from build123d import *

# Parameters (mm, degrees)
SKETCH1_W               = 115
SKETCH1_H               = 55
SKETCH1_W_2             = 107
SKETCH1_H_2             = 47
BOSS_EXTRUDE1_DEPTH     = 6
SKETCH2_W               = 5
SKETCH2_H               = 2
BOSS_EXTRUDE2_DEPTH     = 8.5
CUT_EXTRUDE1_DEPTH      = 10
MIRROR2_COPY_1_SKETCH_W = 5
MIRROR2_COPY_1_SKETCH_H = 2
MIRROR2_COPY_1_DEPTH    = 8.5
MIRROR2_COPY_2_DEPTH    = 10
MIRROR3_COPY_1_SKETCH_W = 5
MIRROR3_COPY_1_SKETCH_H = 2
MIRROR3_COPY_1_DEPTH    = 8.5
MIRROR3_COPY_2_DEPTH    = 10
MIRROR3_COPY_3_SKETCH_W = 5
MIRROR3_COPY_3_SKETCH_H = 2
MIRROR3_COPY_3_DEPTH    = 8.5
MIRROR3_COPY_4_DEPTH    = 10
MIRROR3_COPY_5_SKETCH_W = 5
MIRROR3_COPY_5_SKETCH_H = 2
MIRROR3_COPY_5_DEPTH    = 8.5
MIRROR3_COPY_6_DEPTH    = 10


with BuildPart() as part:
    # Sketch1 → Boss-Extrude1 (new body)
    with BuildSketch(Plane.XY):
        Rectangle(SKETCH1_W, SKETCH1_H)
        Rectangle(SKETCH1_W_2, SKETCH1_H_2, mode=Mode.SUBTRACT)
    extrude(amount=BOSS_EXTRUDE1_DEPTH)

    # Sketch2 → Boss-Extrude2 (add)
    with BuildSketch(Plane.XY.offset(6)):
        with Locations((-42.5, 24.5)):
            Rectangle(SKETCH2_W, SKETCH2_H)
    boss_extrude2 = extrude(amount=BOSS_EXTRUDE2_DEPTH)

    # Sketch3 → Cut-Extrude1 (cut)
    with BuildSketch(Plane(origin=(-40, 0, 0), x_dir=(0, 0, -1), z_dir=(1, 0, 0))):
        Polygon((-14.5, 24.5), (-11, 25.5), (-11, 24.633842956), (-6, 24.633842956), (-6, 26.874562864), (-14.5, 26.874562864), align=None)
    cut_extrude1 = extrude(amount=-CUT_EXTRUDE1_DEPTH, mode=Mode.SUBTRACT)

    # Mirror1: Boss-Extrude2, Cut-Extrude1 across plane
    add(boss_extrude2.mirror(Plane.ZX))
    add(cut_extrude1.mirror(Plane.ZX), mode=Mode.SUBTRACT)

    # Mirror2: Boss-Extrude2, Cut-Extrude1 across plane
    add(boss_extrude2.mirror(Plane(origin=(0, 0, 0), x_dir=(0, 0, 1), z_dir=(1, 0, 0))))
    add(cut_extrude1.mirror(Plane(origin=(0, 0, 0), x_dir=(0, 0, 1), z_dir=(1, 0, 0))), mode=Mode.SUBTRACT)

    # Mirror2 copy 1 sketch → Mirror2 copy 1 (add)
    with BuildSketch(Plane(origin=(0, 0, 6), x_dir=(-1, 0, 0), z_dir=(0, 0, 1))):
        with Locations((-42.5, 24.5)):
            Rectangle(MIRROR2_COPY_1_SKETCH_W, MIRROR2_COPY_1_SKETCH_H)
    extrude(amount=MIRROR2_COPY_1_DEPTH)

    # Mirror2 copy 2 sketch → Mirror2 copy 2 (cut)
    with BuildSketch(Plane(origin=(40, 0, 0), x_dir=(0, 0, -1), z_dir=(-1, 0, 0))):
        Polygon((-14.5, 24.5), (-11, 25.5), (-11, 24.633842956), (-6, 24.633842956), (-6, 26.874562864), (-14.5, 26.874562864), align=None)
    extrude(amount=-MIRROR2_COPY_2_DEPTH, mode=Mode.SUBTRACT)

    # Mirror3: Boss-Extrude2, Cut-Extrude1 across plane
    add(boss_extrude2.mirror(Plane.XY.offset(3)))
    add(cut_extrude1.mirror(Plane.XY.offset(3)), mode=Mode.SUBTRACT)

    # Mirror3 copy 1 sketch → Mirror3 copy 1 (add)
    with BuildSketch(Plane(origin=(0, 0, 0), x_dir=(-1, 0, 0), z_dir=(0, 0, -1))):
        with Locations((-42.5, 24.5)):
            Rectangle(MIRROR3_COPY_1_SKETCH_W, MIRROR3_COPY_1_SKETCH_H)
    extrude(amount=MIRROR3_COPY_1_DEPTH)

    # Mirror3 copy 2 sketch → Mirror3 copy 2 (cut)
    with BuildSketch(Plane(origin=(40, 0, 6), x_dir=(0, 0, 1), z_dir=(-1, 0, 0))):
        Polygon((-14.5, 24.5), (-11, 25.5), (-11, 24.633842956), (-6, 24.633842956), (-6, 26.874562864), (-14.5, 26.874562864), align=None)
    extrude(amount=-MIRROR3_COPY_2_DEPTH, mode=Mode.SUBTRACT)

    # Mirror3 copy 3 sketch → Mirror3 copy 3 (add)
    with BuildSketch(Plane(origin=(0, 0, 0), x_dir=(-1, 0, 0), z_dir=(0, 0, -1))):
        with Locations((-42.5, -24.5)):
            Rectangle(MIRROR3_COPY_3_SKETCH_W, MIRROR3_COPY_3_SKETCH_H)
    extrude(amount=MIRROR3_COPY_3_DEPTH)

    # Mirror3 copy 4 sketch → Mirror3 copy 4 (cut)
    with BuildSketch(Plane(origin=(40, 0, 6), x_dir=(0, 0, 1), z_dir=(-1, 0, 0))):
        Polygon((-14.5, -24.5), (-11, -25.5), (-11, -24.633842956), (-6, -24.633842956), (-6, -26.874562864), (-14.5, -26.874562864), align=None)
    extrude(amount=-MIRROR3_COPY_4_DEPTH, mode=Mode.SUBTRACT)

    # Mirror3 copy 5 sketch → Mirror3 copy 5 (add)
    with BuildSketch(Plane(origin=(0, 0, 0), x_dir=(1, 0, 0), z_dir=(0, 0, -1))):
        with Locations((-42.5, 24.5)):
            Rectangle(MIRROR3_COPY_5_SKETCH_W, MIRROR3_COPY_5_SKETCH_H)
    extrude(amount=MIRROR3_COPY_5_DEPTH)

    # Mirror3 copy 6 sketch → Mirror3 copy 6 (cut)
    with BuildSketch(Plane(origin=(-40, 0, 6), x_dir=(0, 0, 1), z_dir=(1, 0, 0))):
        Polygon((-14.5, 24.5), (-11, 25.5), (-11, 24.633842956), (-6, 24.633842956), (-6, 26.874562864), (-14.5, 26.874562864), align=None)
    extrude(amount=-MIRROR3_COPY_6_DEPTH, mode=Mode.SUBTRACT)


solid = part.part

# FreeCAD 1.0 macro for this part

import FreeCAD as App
import Part
import Sketcher

V = App.Vector

doc = App.newDocument("Part")
body = doc.addObject("PartDesign::Body", "Body")

# Sketch on XY plane
sketch1 = doc.addObject("Sketcher::SketchObject", "Sketch")
body.addObject(sketch1)
sketch1.AttachmentSupport = (doc.XY_Plane, [""])
sketch1.MapMode = "FlatFace"
sketch1.addGeometry([
    Part.LineSegment(V(-58, 28, 0), V(-58, -28, 0)),  # 0
    Part.LineSegment(V(-58, -28, 0), V(58, -28, 0)),  # 1
    Part.LineSegment(V(58, -28, 0), V(58, 28, 0)),  # 2
    Part.LineSegment(V(58, 28, 0), V(-58, 28, 0)),  # 3
    Part.LineSegment(V(54, -24, 0), V(-54, -24, 0)),  # 4
    Part.LineSegment(V(-54, -24, 0), V(-54, 24, 0)),  # 5
    Part.LineSegment(V(-54, 24, 0), V(54, 24, 0)),  # 6
    Part.LineSegment(V(54, 24, 0), V(54, -24, 0)),  # 7
], False)
sketch1.addConstraint([
    Sketcher.Constraint("Coincident", 0, 2, 1, 1),
    Sketcher.Constraint("Coincident", 1, 2, 2, 1),
    Sketcher.Constraint("Coincident", 2, 2, 3, 1),
    Sketcher.Constraint("Coincident", 3, 2, 0, 1),
    Sketcher.Constraint("Coincident", 4, 2, 5, 1),
    Sketcher.Constraint("Coincident", 5, 2, 6, 1),
    Sketcher.Constraint("Coincident", 6, 2, 7, 1),
    Sketcher.Constraint("Coincident", 7, 2, 4, 1),
    Sketcher.Constraint("Vertical", 0),
    Sketcher.Constraint("Horizontal", 1),
    Sketcher.Constraint("Vertical", 2),
    Sketcher.Constraint("Horizontal", 3),
    Sketcher.Constraint("Horizontal", 4),
    Sketcher.Constraint("Vertical", 5),
    Sketcher.Constraint("Horizontal", 6),
    Sketcher.Constraint("Vertical", 7),
    Sketcher.Constraint("Symmetric", 0, 2, 2, 2, -1, 1),
    Sketcher.Constraint("Symmetric", 4, 2, 6, 2, -1, 1),
    Sketcher.Constraint("DistanceX", 1, 1, 1, 2, 115.0),
    Sketcher.Constraint("DistanceX", 4, 2, 4, 1, 107.0),
    Sketcher.Constraint("DistanceY", 0, 2, 0, 1, 55.0),
    Sketcher.Constraint("DistanceY", 5, 1, 5, 2, 47.0),
])
pad1 = doc.addObject("PartDesign::Pad", "Pad")
body.addObject(pad1)
pad1.Profile = sketch1
pad1.Length = 6

# Sketch on XY plane
sketch2 = doc.addObject("Sketcher::SketchObject", "Sketch001")
body.addObject(sketch2)
sketch2.AttachmentSupport = (doc.XY_Plane, [""])
sketch2.MapMode = "FlatFace"
sketch2.AttachmentOffset = App.Placement(V(0, 0, 6), App.Rotation())
sketch2.addGeometry([
    Part.LineSegment(V(-45, 25.5, 0), V(-45, 23.5, 0)),
    Part.LineSegment(V(-45, 23.5, 0), V(-40, 23.5, 0)),
    Part.LineSegment(V(-40, 23.5, 0), V(-40, 25.5, 0)),
    Part.LineSegment(V(-40, 25.5, 0), V(-45, 25.5, 0)),
], False)
sketch2.addConstraint([
    Sketcher.Constraint("Coincident", 0, 2, 1, 1),
    Sketcher.Constraint("Coincident", 1, 2, 2, 1),
    Sketcher.Constraint("Coincident", 2, 2, 3, 1),
    Sketcher.Constraint("Coincident", 3, 2, 0, 1),
    Sketcher.Constraint("Vertical", 0),
    Sketcher.Constraint("Horizontal", 1),
    Sketcher.Constraint("Vertical", 2),
    Sketcher.Constraint("Horizontal", 3),
    Sketcher.Constraint("DistanceX", 1, 1, 1, 2, 5.0),
    Sketcher.Constraint("DistanceY", 0, 2, 0, 1, 2.0),
    Sketcher.Constraint("DistanceX", 0, 2, -1, 1, 45.0),
    Sketcher.Constraint("DistanceY", -1, 1, 0, 2, 23.5),
])
pad2 = doc.addObject("PartDesign::Pad", "Pad001")
body.addObject(pad2)
pad2.Profile = sketch2
pad2.Length = 8.5

# Sketch on YZ plane
sketch3 = doc.addObject("Sketcher::SketchObject", "Sketch002")
body.addObject(sketch3)
sketch3.AttachmentSupport = (doc.YZ_Plane, [""])
sketch3.MapMode = "FlatFace"
sketch3.AttachmentOffset = App.Placement(V(0, 0, -40), App.Rotation())
sketch3.addGeometry([
    Part.LineSegment(V(24.5, 14.5, 0), V(25.5, 11, 0)),  # 0
    Part.LineSegment(V(25.5, 11, 0), V(24.6, 11, 0)),  # 1
    Part.LineSegment(V(24.6, 11, 0), V(24.6, 6, 0)),  # 2
    Part.LineSegment(V(24.6, 6, 0), V(26.9, 6, 0)),  # 3
    Part.LineSegment(V(26.9, 6, 0), V(26.9, 14.5, 0)),  # 4
    Part.LineSegment(V(26.9, 14.5, 0), V(24.5, 14.5, 0)),  # 5
], False)
sketch3.addConstraint([
    Sketcher.Constraint("Coincident", 0, 2, 1, 1),
    Sketcher.Constraint("Coincident", 1, 2, 2, 1),
    Sketcher.Constraint("Coincident", 2, 2, 3, 1),
    Sketcher.Constraint("Coincident", 3, 2, 4, 1),
    Sketcher.Constraint("Coincident", 4, 2, 5, 1),
    Sketcher.Constraint("Coincident", 5, 2, 0, 1),
    Sketcher.Constraint("Horizontal", 1),
    Sketcher.Constraint("Vertical", 2),
    Sketcher.Constraint("Horizontal", 3),
    Sketcher.Constraint("Vertical", 4),
    Sketcher.Constraint("Horizontal", 5),
    Sketcher.Constraint("DistanceY", 2, 2, 2, 1, 5.0),
    Sketcher.Constraint("DistanceY", 4, 1, 4, 2, 8.5),
    Sketcher.Constraint("DistanceY", -1, 1, 0, 2, 11.0),
    Sketcher.Constraint("DistanceX", 5, 2, 0, 2, 1.0),
    Sketcher.Constraint("DistanceX", -1, 1, 0, 2, 25.5),
    Sketcher.Constraint("DistanceX", 3, 1, 3, 2, 2.24072),
    Sketcher.Constraint("DistanceX", 1, 2, 1, 1, 0.866157),
])
pocket1 = doc.addObject("PartDesign::Pocket", "Pocket")
body.addObject(pocket1)
pocket1.Profile = sketch3
pocket1.Length = 10
doc.recompute()

mirrored = doc.addObject("PartDesign::Mirrored", "Mirrored")
body.addObject(mirrored)
mirrored.Originals = [pad2, pocket1]
mirrored.MirrorPlane = (doc.XZ_Plane, [""])
body.Tip = mirrored
doc.recompute()

mirrored2 = doc.addObject("PartDesign::Mirrored", "Mirrored001")
body.addObject(mirrored2)
mirrored2.Originals = [pad2, pocket1]
mirrored2.MirrorPlane = (doc.YZ_Plane, [""])
body.Tip = mirrored2

# Sketch on XY plane
sketch4 = doc.addObject("Sketcher::SketchObject", "Sketch003")
body.addObject(sketch4)
sketch4.AttachmentSupport = (doc.XY_Plane, [""])
sketch4.MapMode = "FlatFace"
sketch4.AttachmentOffset = App.Placement(V(0, 0, 6), App.Rotation())
sketch4.addGeometry([
    Part.LineSegment(V(45, -25.5, 0), V(45, -23.5, 0)),
    Part.LineSegment(V(45, -23.5, 0), V(40, -23.5, 0)),
    Part.LineSegment(V(40, -23.5, 0), V(40, -25.5, 0)),
    Part.LineSegment(V(40, -25.5, 0), V(45, -25.5, 0)),
], False)
sketch4.addConstraint([
    Sketcher.Constraint("Coincident", 0, 2, 1, 1),
    Sketcher.Constraint("Coincident", 1, 2, 2, 1),
    Sketcher.Constraint("Coincident", 2, 2, 3, 1),
    Sketcher.Constraint("Coincident", 3, 2, 0, 1),
    Sketcher.Constraint("Vertical", 0),
    Sketcher.Constraint("Horizontal", 1),
    Sketcher.Constraint("Vertical", 2),
    Sketcher.Constraint("Horizontal", 3),
    Sketcher.Constraint("DistanceX", 1, 2, 1, 1, 5.0),
    Sketcher.Constraint("DistanceY", 0, 1, 0, 2, 2.0),
    Sketcher.Constraint("DistanceX", -1, 1, 0, 2, 45.0),
    Sketcher.Constraint("DistanceY", 0, 2, -1, 1, 23.5),
])
pad3 = doc.addObject("PartDesign::Pad", "Pad002")
body.addObject(pad3)
pad3.Profile = sketch4
pad3.Length = 8.5

# Sketch on YZ plane
sketch5 = doc.addObject("Sketcher::SketchObject", "Sketch004")
body.addObject(sketch5)
sketch5.AttachmentSupport = (doc.YZ_Plane, [""])
sketch5.MapMode = "FlatFace"
sketch5.AttachmentOffset = App.Placement(V(0, 0, 40), App.Rotation())
sketch5.addGeometry([
    Part.LineSegment(V(-24.5, 14.5, 0), V(-25.5, 11, 0)),  # 0
    Part.LineSegment(V(-25.5, 11, 0), V(-24.6, 11, 0)),  # 1
    Part.LineSegment(V(-24.6, 11, 0), V(-24.6, 6, 0)),  # 2
    Part.LineSegment(V(-24.6, 6, 0), V(-26.9, 6, 0)),  # 3
    Part.LineSegment(V(-26.9, 6, 0), V(-26.9, 14.5, 0)),  # 4
    Part.LineSegment(V(-26.9, 14.5, 0), V(-24.5, 14.5, 0)),  # 5
], False)
sketch5.addConstraint([
    Sketcher.Constraint("Coincident", 0, 2, 1, 1),
    Sketcher.Constraint("Coincident", 1, 2, 2, 1),
    Sketcher.Constraint("Coincident", 2, 2, 3, 1),
    Sketcher.Constraint("Coincident", 3, 2, 4, 1),
    Sketcher.Constraint("Coincident", 4, 2, 5, 1),
    Sketcher.Constraint("Coincident", 5, 2, 0, 1),
    Sketcher.Constraint("Horizontal", 1),
    Sketcher.Constraint("Vertical", 2),
    Sketcher.Constraint("Horizontal", 3),
    Sketcher.Constraint("Vertical", 4),
    Sketcher.Constraint("Horizontal", 5),
    Sketcher.Constraint("DistanceY", 2, 2, 2, 1, 5.0),
    Sketcher.Constraint("DistanceY", 4, 1, 4, 2, 8.5),
    Sketcher.Constraint("DistanceY", -1, 1, 0, 2, 11.0),
    Sketcher.Constraint("DistanceX", 0, 2, 5, 2, 1.0),
    Sketcher.Constraint("DistanceX", 0, 2, -1, 1, 25.5),
    Sketcher.Constraint("DistanceX", 3, 2, 3, 1, 2.24072),
    Sketcher.Constraint("DistanceX", 1, 1, 1, 2, 0.866157),
])
pocket2 = doc.addObject("PartDesign::Pocket", "Pocket001")
body.addObject(pocket2)
pocket2.Profile = sketch5
pocket2.Length = 10
pocket2.Reversed = True
doc.recompute()

datumplane = doc.addObject("PartDesign::Plane", "DatumPlane")
body.addObject(datumplane)
datumplane.AttachmentSupport = (doc.XY_Plane, [""])
datumplane.MapMode = "FlatFace"
datumplane.AttachmentOffset = App.Placement(V(0, 0, 3), App.Rotation())
mirrored3 = doc.addObject("PartDesign::Mirrored", "Mirrored002")
body.addObject(mirrored3)
mirrored3.Originals = [pad2, pocket1]
mirrored3.MirrorPlane = (datumplane, [""])
body.Tip = mirrored3

# Sketch on XY plane
sketch6 = doc.addObject("Sketcher::SketchObject", "Sketch005")
body.addObject(sketch6)
sketch6.AttachmentSupport = (doc.XY_Plane, [""])
sketch6.MapMode = "FlatFace"
sketch6.addGeometry([
    Part.LineSegment(V(45, 25.5, 0), V(45, 23.5, 0)),
    Part.LineSegment(V(45, 23.5, 0), V(40, 23.5, 0)),
    Part.LineSegment(V(40, 23.5, 0), V(40, 25.5, 0)),
    Part.LineSegment(V(40, 25.5, 0), V(45, 25.5, 0)),
], False)
sketch6.addConstraint([
    Sketcher.Constraint("Coincident", 0, 2, 1, 1),
    Sketcher.Constraint("Coincident", 1, 2, 2, 1),
    Sketcher.Constraint("Coincident", 2, 2, 3, 1),
    Sketcher.Constraint("Coincident", 3, 2, 0, 1),
    Sketcher.Constraint("Vertical", 0),
    Sketcher.Constraint("Horizontal", 1),
    Sketcher.Constraint("Vertical", 2),
    Sketcher.Constraint("Horizontal", 3),
    Sketcher.Constraint("DistanceX", 1, 2, 1, 1, 5.0),
    Sketcher.Constraint("DistanceY", 0, 2, 0, 1, 2.0),
    Sketcher.Constraint("DistanceX", -1, 1, 0, 2, 45.0),
    Sketcher.Constraint("DistanceY", -1, 1, 0, 2, 23.5),
])
pad4 = doc.addObject("PartDesign::Pad", "Pad003")
body.addObject(pad4)
pad4.Profile = sketch6
pad4.Length = 8.5
pad4.Reversed = True

# Sketch on YZ plane
sketch7 = doc.addObject("Sketcher::SketchObject", "Sketch006")
body.addObject(sketch7)
sketch7.AttachmentSupport = (doc.YZ_Plane, [""])
sketch7.MapMode = "FlatFace"
sketch7.AttachmentOffset = App.Placement(V(0, 0, 40), App.Rotation())
sketch7.addGeometry([
    Part.LineSegment(V(24.5, -8.5, 0), V(25.5, -5, 0)),  # 0
    Part.LineSegment(V(25.5, -5, 0), V(24.6, -5, 0)),  # 1
    Part.LineSegment(V(24.6, -5, 0), V(24.6, 0, 0)),  # 2
    Part.LineSegment(V(24.6, 0, 0), V(26.9, 0, 0)),  # 3
    Part.LineSegment(V(26.9, 0, 0), V(26.9, -8.5, 0)),  # 4
    Part.LineSegment(V(26.9, -8.5, 0), V(24.5, -8.5, 0)),  # 5
], False)
sketch7.addConstraint([
    Sketcher.Constraint("Coincident", 0, 2, 1, 1),
    Sketcher.Constraint("Coincident", 1, 2, 2, 1),
    Sketcher.Constraint("Coincident", 2, 2, 3, 1),
    Sketcher.Constraint("Coincident", 3, 2, 4, 1),
    Sketcher.Constraint("Coincident", 4, 2, 5, 1),
    Sketcher.Constraint("Coincident", 5, 2, 0, 1),
    Sketcher.Constraint("Horizontal", 1),
    Sketcher.Constraint("Vertical", 2),
    Sketcher.Constraint("Horizontal", 3),
    Sketcher.Constraint("Vertical", 4),
    Sketcher.Constraint("Horizontal", 5),
    Sketcher.Constraint("PointOnObject", 2, 2, -1),
    Sketcher.Constraint("DistanceY", 2, 1, 2, 2, 5.0),
    Sketcher.Constraint("DistanceY", 4, 2, 4, 1, 8.5),
    Sketcher.Constraint("DistanceX", 5, 2, 0, 2, 1.0),
    Sketcher.Constraint("DistanceX", -1, 1, 0, 2, 25.5),
    Sketcher.Constraint("DistanceX", 3, 1, 3, 2, 2.24072),
    Sketcher.Constraint("DistanceX", 1, 2, 1, 1, 0.866157),
])
pocket3 = doc.addObject("PartDesign::Pocket", "Pocket002")
body.addObject(pocket3)
pocket3.Profile = sketch7
pocket3.Length = 10
pocket3.Reversed = True

# Sketch on XY plane
sketch8 = doc.addObject("Sketcher::SketchObject", "Sketch007")
body.addObject(sketch8)
sketch8.AttachmentSupport = (doc.XY_Plane, [""])
sketch8.MapMode = "FlatFace"
sketch8.addGeometry([
    Part.LineSegment(V(45, -23.5, 0), V(45, -25.5, 0)),
    Part.LineSegment(V(45, -25.5, 0), V(40, -25.5, 0)),
    Part.LineSegment(V(40, -25.5, 0), V(40, -23.5, 0)),
    Part.LineSegment(V(40, -23.5, 0), V(45, -23.5, 0)),
], False)
sketch8.addConstraint([
    Sketcher.Constraint("Coincident", 0, 2, 1, 1),
    Sketcher.Constraint("Coincident", 1, 2, 2, 1),
    Sketcher.Constraint("Coincident", 2, 2, 3, 1),
    Sketcher.Constraint("Coincident", 3, 2, 0, 1),
    Sketcher.Constraint("Vertical", 0),
    Sketcher.Constraint("Horizontal", 1),
    Sketcher.Constraint("Vertical", 2),
    Sketcher.Constraint("Horizontal", 3),
    Sketcher.Constraint("DistanceX", 1, 2, 1, 1, 5.0),
    Sketcher.Constraint("DistanceY", 0, 2, 0, 1, 2.0),
    Sketcher.Constraint("DistanceX", -1, 1, 0, 2, 45.0),
    Sketcher.Constraint("DistanceY", 0, 2, -1, 1, 25.5),
])
pad5 = doc.addObject("PartDesign::Pad", "Pad004")
body.addObject(pad5)
pad5.Profile = sketch8
pad5.Length = 8.5
pad5.Reversed = True

# Sketch on YZ plane
sketch9 = doc.addObject("Sketcher::SketchObject", "Sketch008")
body.addObject(sketch9)
sketch9.AttachmentSupport = (doc.YZ_Plane, [""])
sketch9.MapMode = "FlatFace"
sketch9.AttachmentOffset = App.Placement(V(0, 0, 40), App.Rotation())
sketch9.addGeometry([
    Part.LineSegment(V(-25.5, -5, 0), V(-24.5, -8.5, 0)),  # 0
    Part.LineSegment(V(-24.5, -8.5, 0), V(-26.9, -8.5, 0)),  # 1
    Part.LineSegment(V(-26.9, -8.5, 0), V(-26.9, 0, 0)),  # 2
    Part.LineSegment(V(-26.9, 0, 0), V(-24.6, 0, 0)),  # 3
    Part.LineSegment(V(-24.6, 0, 0), V(-24.6, -5, 0)),  # 4
    Part.LineSegment(V(-24.6, -5, 0), V(-25.5, -5, 0)),  # 5
], False)
sketch9.addConstraint([
    Sketcher.Constraint("Coincident", 0, 2, 1, 1),
    Sketcher.Constraint("Coincident", 1, 2, 2, 1),
    Sketcher.Constraint("Coincident", 2, 2, 3, 1),
    Sketcher.Constraint("Coincident", 3, 2, 4, 1),
    Sketcher.Constraint("Coincident", 4, 2, 5, 1),
    Sketcher.Constraint("Coincident", 5, 2, 0, 1),
    Sketcher.Constraint("Horizontal", 1),
    Sketcher.Constraint("Vertical", 2),
    Sketcher.Constraint("Horizontal", 3),
    Sketcher.Constraint("Vertical", 4),
    Sketcher.Constraint("Horizontal", 5),
    Sketcher.Constraint("PointOnObject", 2, 2, -1),
    Sketcher.Constraint("DistanceY", 4, 2, 4, 1, 5.0),
    Sketcher.Constraint("DistanceY", 2, 1, 2, 2, 8.5),
    Sketcher.Constraint("DistanceX", 5, 2, 0, 2, 1.0),
    Sketcher.Constraint("DistanceX", 0, 2, -1, 1, 24.5),
    Sketcher.Constraint("DistanceX", 3, 1, 3, 2, 2.24072),
    Sketcher.Constraint("DistanceX", 1, 2, 1, 1, 2.374563),
])
pocket4 = doc.addObject("PartDesign::Pocket", "Pocket003")
body.addObject(pocket4)
pocket4.Profile = sketch9
pocket4.Length = 10
pocket4.Reversed = True

# Sketch on XY plane
sketch10 = doc.addObject("Sketcher::SketchObject", "Sketch009")
body.addObject(sketch10)
sketch10.AttachmentSupport = (doc.XY_Plane, [""])
sketch10.MapMode = "FlatFace"
sketch10.addGeometry([
    Part.LineSegment(V(-45, -25.5, 0), V(-45, -23.5, 0)),
    Part.LineSegment(V(-45, -23.5, 0), V(-40, -23.5, 0)),
    Part.LineSegment(V(-40, -23.5, 0), V(-40, -25.5, 0)),
    Part.LineSegment(V(-40, -25.5, 0), V(-45, -25.5, 0)),
], False)
sketch10.addConstraint([
    Sketcher.Constraint("Coincident", 0, 2, 1, 1),
    Sketcher.Constraint("Coincident", 1, 2, 2, 1),
    Sketcher.Constraint("Coincident", 2, 2, 3, 1),
    Sketcher.Constraint("Coincident", 3, 2, 0, 1),
    Sketcher.Constraint("Vertical", 0),
    Sketcher.Constraint("Horizontal", 1),
    Sketcher.Constraint("Vertical", 2),
    Sketcher.Constraint("Horizontal", 3),
    Sketcher.Constraint("DistanceX", 1, 1, 1, 2, 5.0),
    Sketcher.Constraint("DistanceY", 0, 1, 0, 2, 2.0),
    Sketcher.Constraint("DistanceX", 0, 2, -1, 1, 45.0),
    Sketcher.Constraint("DistanceY", 0, 2, -1, 1, 23.5),
])
pad6 = doc.addObject("PartDesign::Pad", "Pad005")
body.addObject(pad6)
pad6.Profile = sketch10
pad6.Length = 8.5
pad6.Reversed = True

# Sketch on YZ plane
sketch11 = doc.addObject("Sketcher::SketchObject", "Sketch010")
body.addObject(sketch11)
sketch11.AttachmentSupport = (doc.YZ_Plane, [""])
sketch11.MapMode = "FlatFace"
sketch11.AttachmentOffset = App.Placement(V(0, 0, -40), App.Rotation())
sketch11.addGeometry([
    Part.LineSegment(V(-24.5, -8.5, 0), V(-25.5, -5, 0)),  # 0
    Part.LineSegment(V(-25.5, -5, 0), V(-24.6, -5, 0)),  # 1
    Part.LineSegment(V(-24.6, -5, 0), V(-24.6, 0, 0)),  # 2
    Part.LineSegment(V(-24.6, 0, 0), V(-26.9, 0, 0)),  # 3
    Part.LineSegment(V(-26.9, 0, 0), V(-26.9, -8.5, 0)),  # 4
    Part.LineSegment(V(-26.9, -8.5, 0), V(-24.5, -8.5, 0)),  # 5
], False)
sketch11.addConstraint([
    Sketcher.Constraint("Coincident", 0, 2, 1, 1),
    Sketcher.Constraint("Coincident", 1, 2, 2, 1),
    Sketcher.Constraint("Coincident", 2, 2, 3, 1),
    Sketcher.Constraint("Coincident", 3, 2, 4, 1),
    Sketcher.Constraint("Coincident", 4, 2, 5, 1),
    Sketcher.Constraint("Coincident", 5, 2, 0, 1),
    Sketcher.Constraint("Horizontal", 1),
    Sketcher.Constraint("Vertical", 2),
    Sketcher.Constraint("Horizontal", 3),
    Sketcher.Constraint("Vertical", 4),
    Sketcher.Constraint("Horizontal", 5),
    Sketcher.Constraint("PointOnObject", 2, 2, -1),
    Sketcher.Constraint("DistanceY", 2, 1, 2, 2, 5.0),
    Sketcher.Constraint("DistanceY", 4, 2, 4, 1, 8.5),
    Sketcher.Constraint("DistanceX", 0, 2, 5, 2, 1.0),
    Sketcher.Constraint("DistanceX", 0, 2, -1, 1, 25.5),
    Sketcher.Constraint("DistanceX", 3, 2, 3, 1, 2.24072),
    Sketcher.Constraint("DistanceX", 1, 1, 1, 2, 0.866157),
])
pocket5 = doc.addObject("PartDesign::Pocket", "Pocket004")
body.addObject(pocket5)
pocket5.Profile = sketch11
pocket5.Length = 10

doc.recompute()
